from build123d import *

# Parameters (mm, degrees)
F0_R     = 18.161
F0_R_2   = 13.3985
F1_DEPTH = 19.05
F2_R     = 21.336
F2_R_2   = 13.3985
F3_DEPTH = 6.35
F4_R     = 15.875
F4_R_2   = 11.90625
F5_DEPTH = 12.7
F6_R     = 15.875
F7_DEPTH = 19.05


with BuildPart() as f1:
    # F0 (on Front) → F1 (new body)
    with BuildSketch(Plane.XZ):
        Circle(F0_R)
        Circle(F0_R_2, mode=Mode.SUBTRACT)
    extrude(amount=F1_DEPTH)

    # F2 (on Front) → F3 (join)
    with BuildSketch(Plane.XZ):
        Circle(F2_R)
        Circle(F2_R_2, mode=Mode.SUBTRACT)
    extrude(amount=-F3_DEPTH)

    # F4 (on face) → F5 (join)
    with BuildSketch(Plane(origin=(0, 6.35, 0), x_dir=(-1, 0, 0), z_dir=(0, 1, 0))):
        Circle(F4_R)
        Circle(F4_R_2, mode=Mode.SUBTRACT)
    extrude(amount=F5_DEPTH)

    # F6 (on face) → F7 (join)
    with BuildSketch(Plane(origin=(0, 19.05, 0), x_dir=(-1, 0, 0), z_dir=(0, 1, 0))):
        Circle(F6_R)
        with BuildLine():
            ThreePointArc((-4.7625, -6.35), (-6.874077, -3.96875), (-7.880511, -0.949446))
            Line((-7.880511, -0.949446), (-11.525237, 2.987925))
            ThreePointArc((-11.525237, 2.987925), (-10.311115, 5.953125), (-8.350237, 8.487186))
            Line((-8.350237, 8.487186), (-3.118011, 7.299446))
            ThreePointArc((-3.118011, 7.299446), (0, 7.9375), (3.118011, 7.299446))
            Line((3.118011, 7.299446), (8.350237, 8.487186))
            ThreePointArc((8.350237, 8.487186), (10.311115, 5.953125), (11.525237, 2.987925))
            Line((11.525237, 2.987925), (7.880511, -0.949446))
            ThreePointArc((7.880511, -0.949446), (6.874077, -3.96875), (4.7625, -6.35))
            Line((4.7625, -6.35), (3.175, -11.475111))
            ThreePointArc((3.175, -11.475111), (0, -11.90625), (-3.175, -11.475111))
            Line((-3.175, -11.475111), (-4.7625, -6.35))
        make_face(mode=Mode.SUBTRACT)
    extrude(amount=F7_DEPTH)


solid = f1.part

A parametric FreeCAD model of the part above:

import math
import FreeCAD as App
import Part
import Sketcher
Q = App.Units.Quantity

doc = App.newDocument("Part")
body = doc.addObject("PartDesign::Body", "Body")

# Sketch on XZ plane
sketch1 = doc.addObject("Sketcher::SketchObject", "Sketch")
body.addObject(sketch1)
sketch1.AttachmentSupport = (doc.XZ_Plane, [""])
sketch1.MapMode = "FlatFace"
sketch1.addGeometry([
    Part.Circle(App.Vector(0, 0, 0), App.Vector(0, 0, 1), 18),
    Part.Circle(App.Vector(0, 0, 0), App.Vector(0, 0, 1), 13),
], False)
sketch1.addConstraint([
    Sketcher.Constraint("Coincident", 0, 3, -1, 1),
    Sketcher.Constraint("Coincident", 1, 3, -1, 1),
    Sketcher.Constraint("Diameter", 0, Q("1.43 in")),
    Sketcher.Constraint("Diameter", 1, Q("1.055 in")),
])
pad1 = doc.addObject("PartDesign::Pad", "Pad")
body.addObject(pad1)
pad1.Profile = sketch1
pad1.Length = Q("0.75 in")

# Sketch on XZ plane
sketch2 = doc.addObject("Sketcher::SketchObject", "Sketch001")
body.addObject(sketch2)
sketch2.AttachmentSupport = (doc.XZ_Plane, [""])
sketch2.MapMode = "FlatFace"
sketch2.addGeometry([
    Part.Circle(App.Vector(0, 0, 0), App.Vector(0, 0, 1), 21),
    Part.Circle(App.Vector(0, 0, 0), App.Vector(0, 0, 1), 13),
], False)
sketch2.addConstraint([
    Sketcher.Constraint("Coincident", 0, 3, -1, 1),
    Sketcher.Constraint("Coincident", 1, 3, -1, 1),
    Sketcher.Constraint("Diameter", 0, Q("1.68 in")),
    Sketcher.Constraint("Diameter", 1, Q("1.055 in")),
])
pad2 = doc.addObject("PartDesign::Pad", "Pad001")
body.addObject(pad2)
pad2.Profile = sketch2
pad2.Length = Q("0.25 in")
pad2.Reversed = True

# Sketch on XZ plane
sketch3 = doc.addObject("Sketcher::SketchObject", "Sketch002")
body.addObject(sketch3)
sketch3.AttachmentSupport = (doc.XZ_Plane, [""])
sketch3.MapMode = "FlatFace"
sketch3.AttachmentOffset = App.Placement(App.Vector(0, 0, -0.25 * 25.4), App.Rotation())
sketch3.addGeometry([
    Part.Circle(App.Vector(0, 0, 0), App.Vector(0, 0, 1), 16),
    Part.Circle(App.Vector(0, 0, 0), App.Vector(0, 0, 1), 12),
], False)
sketch3.addConstraint([
    Sketcher.Constraint("Coincident", 0, 3, -1, 1),
    Sketcher.Constraint("Coincident", 1, 3, -1, 1),
    Sketcher.Constraint("Diameter", 0, Q("1.25 in")),
    Sketcher.Constraint("Diameter", 1, Q("0.9375 in")),
])
pad3 = doc.addObject("PartDesign::Pad", "Pad002")
body.addObject(pad3)
pad3.Profile = sketch3
pad3.Length = Q("0.5 in")
pad3.Reversed = True

# Sketch on XZ plane
sketch4 = doc.addObject("Sketcher::SketchObject", "Sketch003")
body.addObject(sketch4)
sketch4.AttachmentSupport = (doc.XZ_Plane, [""])
sketch4.MapMode = "FlatFace"
sketch4.AttachmentOffset = App.Placement(App.Vector(0, 0, -0.75 * 25.4), App.Rotation())
sketch4.addGeometry([
    Part.Circle(App.Vector(0, 0, 0), App.Vector(0, 0, 1), 15.875),  # 0
    Part.LineSegment(App.Vector(3.175, -11.475111, 0), App.Vector(4.7625, -6.35, 0)),  # 1
    Part.ArcOfCircle(Part.Circle(App.Vector(0.000005, -0.000003, 0), App.Vector(0, 0, 1), 7.937495), math.radians(-53.130116), math.radians(-6.869879)),  # 2
    Part.LineSegment(App.Vector(7.880511, -0.949446, 0), App.Vector(11.525237, 2.987925, 0)),  # 3
    Part.ArcOfCircle(Part.Circle(App.Vector(0.000006, 0.000003, 0), App.Vector(0, 0, 1), 11.906243), math.radians(14.533983), math.radians(45.46602)),  # 4
    Part.LineSegment(App.Vector(8.350237, 8.487186, 0), App.Vector(3.118011, 7.299446, 0)),  # 5
    Part.ArcOfCircle(Part.Circle(App.Vector(0, 0.000001, 0), App.Vector(0, 0, 1), 7.937499), math.radians(66.869896), math.radians(113.130104)),  # 6
    Part.LineSegment(App.Vector(-3.118011, 7.299446, 0), App.Vector(-8.350237, 8.487186, 0)),  # 7
    Part.ArcOfCircle(Part.Circle(App.Vector(-0.000006, 0.000003, 0), App.Vector(0, 0, 1), 11.906243), math.radians(134.53398), math.radians(165.466017)),  # 8
    Part.LineSegment(App.Vector(-11.525237, 2.987925, 0), App.Vector(-7.880511, -0.949446, 0)),  # 9
    Part.ArcOfCircle(Part.Circle(App.Vector(-0.000005, -0.000003, 0), App.Vector(0, 0, 1), 7.937495), math.radians(-173.130121), math.radians(-126.869884)),  # 10
    Part.LineSegment(App.Vector(-4.7625, -6.35, 0), App.Vector(-3.175, -11.475111, 0)),  # 11
    Part.ArcOfCircle(Part.Circle(App.Vector(0, 0.00001, 0), App.Vector(0, 0, 1), 11.90626), math.radians(-105.465997), math.radians(-74.534003)),  # 12
], False)
sketch4.addConstraint([
    Sketcher.Constraint("Coincident", 1, 2, 2, 1),
    Sketcher.Constraint("Coincident", 2, 2, 3, 1),
    Sketcher.Constraint("Coincident", 3, 2, 4, 1),
    Sketcher.Constraint("Coincident", 4, 2, 5, 1),
    Sketcher.Constraint("Coincident", 5, 2, 6, 1),
    Sketcher.Constraint("Coincident", 6, 2, 7, 1),
    Sketcher.Constraint("Coincident", 7, 2, 8, 1),
    Sketcher.Constraint("Coincident", 8, 2, 9, 1),
    Sketcher.Constraint("Coincident", 9, 2, 10, 1),
    Sketcher.Constraint("Coincident", 10, 2, 11, 1),
    Sketcher.Constraint("Coincident", 11, 2, 12, 1),
    Sketcher.Constraint("Coincident", 12, 2, 1, 1),
    Sketcher.Constraint("Coincident", 0, 3, -1, 1),
    Sketcher.Constraint("Coincident", 2, 3, -1, 1),
    Sketcher.Constraint("Coincident", 4, 3, -1, 1),
    Sketcher.Constraint("Coincident", 6, 3, -1, 1),
    Sketcher.Constraint("Coincident", 8, 3, -1, 1),
    Sketcher.Constraint("Coincident", 10, 3, -1, 1),
    Sketcher.Constraint("Coincident", 12, 3, -1, 1),
    Sketcher.Constraint("Diameter", 0, Q("1.25 in")),
    Sketcher.Constraint("Radius", 6, Q("0.3124999 in")),
    Sketcher.Constraint("DistanceY", 1, 2, -1, 1, Q("0.25 in")),
    Sketcher.Constraint("DistanceY", 10, 2, -1, 1, Q("0.25 in")),
    Sketcher.Constraint("DistanceX", 11, 2, 12, 2, Q("0.25 in")),
    Sketcher.Constraint("DistanceX", -1, 1, 1, 2, Q("0.1875 in")),
    Sketcher.Constraint("DistanceX", 10, 2, -1, 1, Q("0.1875 in")),
    Sketcher.Constraint("DistanceX", 11, 2, -1, 1, Q("0.125 in")),
    Sketcher.Constraint("Radius", 12, 11.90626),
    Sketcher.Constraint("DistanceX", 4, 2, 3, 2, Q("0.125 in")),
    Sketcher.Constraint("DistanceX", 8, 2, 7, 2, Q("0.125 in")),
    Sketcher.Constraint("Radius", 4, 11.906243),
    Sketcher.Constraint("Radius", 8, 11.906243),
    Sketcher.Constraint("DistanceX", -1, 1, 2, 2, 7.880511),
    Sketcher.Constraint("DistanceX", -1, 1, 5, 2, 3.118011),
    Sketcher.Constraint("DistanceX", 6, 2, -1, 1, 3.118011),
    Sketcher.Constraint("DistanceX", 9, 2, -1, 1, 7.880511),
    Sketcher.Constraint("DistanceY", 2, 2, 3, 2, 3.937371),
    Sketcher.Constraint("DistanceY", 6, 2, 7, 2, 1.18774),
])
pad4 = doc.addObject("PartDesign::Pad", "Pad003")
body.addObject(pad4)
pad4.Profile = sketch4
pad4.Length = Q("0.75 in")
pad4.Reversed = True

doc.recompute()
